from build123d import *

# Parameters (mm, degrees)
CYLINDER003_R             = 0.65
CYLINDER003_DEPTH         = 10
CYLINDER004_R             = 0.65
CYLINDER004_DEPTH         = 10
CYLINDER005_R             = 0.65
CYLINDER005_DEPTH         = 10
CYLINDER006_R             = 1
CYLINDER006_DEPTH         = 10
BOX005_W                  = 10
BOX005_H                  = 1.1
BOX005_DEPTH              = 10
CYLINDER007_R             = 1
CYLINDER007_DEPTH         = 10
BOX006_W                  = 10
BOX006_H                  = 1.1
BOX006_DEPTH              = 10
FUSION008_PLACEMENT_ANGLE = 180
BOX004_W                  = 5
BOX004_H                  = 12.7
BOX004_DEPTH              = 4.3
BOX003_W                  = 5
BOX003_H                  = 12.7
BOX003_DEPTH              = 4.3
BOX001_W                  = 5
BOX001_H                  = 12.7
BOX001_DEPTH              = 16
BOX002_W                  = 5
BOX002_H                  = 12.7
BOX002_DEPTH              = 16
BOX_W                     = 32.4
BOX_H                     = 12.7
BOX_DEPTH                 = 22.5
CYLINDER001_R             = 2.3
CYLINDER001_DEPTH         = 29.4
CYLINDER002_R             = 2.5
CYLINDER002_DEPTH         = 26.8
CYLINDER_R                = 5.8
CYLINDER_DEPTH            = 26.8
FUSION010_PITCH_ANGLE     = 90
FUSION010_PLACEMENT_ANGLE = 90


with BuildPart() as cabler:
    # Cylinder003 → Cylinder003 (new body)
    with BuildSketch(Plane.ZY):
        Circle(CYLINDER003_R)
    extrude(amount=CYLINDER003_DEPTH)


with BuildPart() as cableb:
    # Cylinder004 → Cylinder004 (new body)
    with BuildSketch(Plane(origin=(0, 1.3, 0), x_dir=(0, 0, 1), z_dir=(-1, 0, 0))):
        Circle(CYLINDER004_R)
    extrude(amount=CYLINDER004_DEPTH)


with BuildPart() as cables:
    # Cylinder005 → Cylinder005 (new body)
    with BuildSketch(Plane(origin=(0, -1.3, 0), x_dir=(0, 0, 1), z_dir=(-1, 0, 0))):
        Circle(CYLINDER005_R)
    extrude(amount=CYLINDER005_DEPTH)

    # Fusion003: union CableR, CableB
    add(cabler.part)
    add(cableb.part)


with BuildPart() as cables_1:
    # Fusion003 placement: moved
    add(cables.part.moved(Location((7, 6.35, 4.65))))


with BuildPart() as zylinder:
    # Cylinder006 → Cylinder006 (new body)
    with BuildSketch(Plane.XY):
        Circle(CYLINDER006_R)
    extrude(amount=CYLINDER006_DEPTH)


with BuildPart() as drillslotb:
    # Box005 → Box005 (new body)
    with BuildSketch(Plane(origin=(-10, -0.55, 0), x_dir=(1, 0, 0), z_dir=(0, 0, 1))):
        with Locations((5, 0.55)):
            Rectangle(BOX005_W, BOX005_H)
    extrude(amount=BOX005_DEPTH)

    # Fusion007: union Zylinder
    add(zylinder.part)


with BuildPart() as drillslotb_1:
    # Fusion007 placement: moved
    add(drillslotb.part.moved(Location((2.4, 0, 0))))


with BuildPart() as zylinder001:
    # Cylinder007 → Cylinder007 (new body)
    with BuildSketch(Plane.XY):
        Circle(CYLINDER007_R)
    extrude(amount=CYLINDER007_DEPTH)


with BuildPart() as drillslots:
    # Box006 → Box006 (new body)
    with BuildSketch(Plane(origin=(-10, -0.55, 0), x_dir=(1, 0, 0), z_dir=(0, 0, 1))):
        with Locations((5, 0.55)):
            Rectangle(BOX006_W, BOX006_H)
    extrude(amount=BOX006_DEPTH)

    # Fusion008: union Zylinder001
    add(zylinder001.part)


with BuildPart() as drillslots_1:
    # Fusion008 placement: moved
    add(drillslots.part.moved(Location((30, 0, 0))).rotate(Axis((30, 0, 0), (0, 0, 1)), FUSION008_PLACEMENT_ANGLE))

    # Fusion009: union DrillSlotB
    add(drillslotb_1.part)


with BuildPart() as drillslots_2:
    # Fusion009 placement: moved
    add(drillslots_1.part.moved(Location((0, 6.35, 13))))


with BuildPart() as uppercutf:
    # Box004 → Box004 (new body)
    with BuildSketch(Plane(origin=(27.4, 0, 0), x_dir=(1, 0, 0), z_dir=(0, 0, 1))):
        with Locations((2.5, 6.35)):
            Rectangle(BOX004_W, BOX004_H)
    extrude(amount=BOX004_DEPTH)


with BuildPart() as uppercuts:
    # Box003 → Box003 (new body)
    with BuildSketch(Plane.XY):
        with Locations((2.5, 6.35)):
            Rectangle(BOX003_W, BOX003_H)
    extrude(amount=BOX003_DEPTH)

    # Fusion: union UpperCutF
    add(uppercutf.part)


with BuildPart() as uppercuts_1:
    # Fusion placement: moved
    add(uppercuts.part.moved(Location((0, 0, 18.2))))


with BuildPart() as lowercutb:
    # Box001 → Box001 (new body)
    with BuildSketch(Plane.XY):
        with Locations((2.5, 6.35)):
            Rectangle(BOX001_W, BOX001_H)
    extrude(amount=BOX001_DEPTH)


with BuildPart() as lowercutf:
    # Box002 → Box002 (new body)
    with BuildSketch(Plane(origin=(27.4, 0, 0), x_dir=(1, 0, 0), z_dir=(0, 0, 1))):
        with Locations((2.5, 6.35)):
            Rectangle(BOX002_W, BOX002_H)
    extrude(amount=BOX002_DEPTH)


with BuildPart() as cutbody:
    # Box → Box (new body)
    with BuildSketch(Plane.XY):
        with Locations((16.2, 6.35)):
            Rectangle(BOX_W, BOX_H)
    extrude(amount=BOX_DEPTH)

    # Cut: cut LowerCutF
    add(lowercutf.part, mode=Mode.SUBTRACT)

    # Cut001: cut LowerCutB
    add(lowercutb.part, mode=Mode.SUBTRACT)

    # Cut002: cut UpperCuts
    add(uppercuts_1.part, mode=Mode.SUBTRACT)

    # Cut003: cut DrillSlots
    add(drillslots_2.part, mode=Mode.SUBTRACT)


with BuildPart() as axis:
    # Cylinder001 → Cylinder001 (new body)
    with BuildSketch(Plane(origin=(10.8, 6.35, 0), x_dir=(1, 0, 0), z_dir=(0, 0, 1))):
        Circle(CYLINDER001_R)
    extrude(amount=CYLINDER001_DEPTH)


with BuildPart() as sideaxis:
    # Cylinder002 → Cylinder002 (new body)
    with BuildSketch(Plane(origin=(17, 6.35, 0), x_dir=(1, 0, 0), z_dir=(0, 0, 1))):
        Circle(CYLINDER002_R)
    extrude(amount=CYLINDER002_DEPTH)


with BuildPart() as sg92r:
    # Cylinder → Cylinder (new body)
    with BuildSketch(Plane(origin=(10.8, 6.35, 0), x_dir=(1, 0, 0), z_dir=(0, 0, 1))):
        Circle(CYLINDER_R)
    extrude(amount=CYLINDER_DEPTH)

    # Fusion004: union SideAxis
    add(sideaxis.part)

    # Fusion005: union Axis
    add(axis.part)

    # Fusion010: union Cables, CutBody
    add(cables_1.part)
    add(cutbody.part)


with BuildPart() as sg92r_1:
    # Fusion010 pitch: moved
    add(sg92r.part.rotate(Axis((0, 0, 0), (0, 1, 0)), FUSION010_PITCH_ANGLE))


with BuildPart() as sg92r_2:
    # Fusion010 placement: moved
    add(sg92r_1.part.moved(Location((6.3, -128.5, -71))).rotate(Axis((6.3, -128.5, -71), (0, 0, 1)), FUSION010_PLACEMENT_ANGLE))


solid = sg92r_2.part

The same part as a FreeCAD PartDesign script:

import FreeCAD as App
import Part
import Sketcher

doc = App.newDocument("Part")
body = doc.addObject("PartDesign::Body", "Body")

sketch1 = doc.addObject("Sketcher::SketchObject", "Sketch")
body.addObject(sketch1)
sketch1.AttachmentSupport = (doc.YZ_Plane, [""])
sketch1.MapMode = "FlatFace"
sketch1.addGeometry(Part.Circle(App.Vector(0, 0, 0), App.Vector(0, 0, 1), 0.65), False)
sketch1.addConstraint([
    Sketcher.Constraint("Coincident", 0, 3, -1, 1),
    Sketcher.Constraint("Diameter", 0, 1.3),
])
pad1 = doc.addObject("PartDesign::Pad", "Pad")
body.addObject(pad1)
pad1.Profile = sketch1
pad1.Length = 10
pad1.Reversed = True
body2 = doc.addObject("PartDesign::Body", "Body001")

sketch2 = doc.addObject("Sketcher::SketchObject", "Sketch001")
body2.addObject(sketch2)
sketch2.AttachmentSupport = (doc.getObject("YZ_Plane001"), [""])
sketch2.MapMode = "FlatFace"
sketch2.addGeometry(Part.Circle(App.Vector(1.3, 0, 0), App.Vector(0, 0, 1), 0.65), False)
sketch2.addConstraint([
    Sketcher.Constraint("PointOnObject", 0, 3, -1),
    Sketcher.Constraint("Diameter", 0, 1.3),
    Sketcher.Constraint("DistanceX", -1, 1, 0, 3, 1.3),
])
pad2 = doc.addObject("PartDesign::Pad", "Pad001")
body2.addObject(pad2)
pad2.Profile = sketch2
pad2.Length = 10
pad2.Reversed = True
body3 = doc.addObject("PartDesign::Body", "Body002")
body3.AllowCompound = True

sketch3 = doc.addObject("Sketcher::SketchObject", "Sketch002")
body3.addObject(sketch3)
sketch3.AttachmentSupport = (doc.getObject("YZ_Plane002"), [""])
sketch3.MapMode = "FlatFace"
sketch3.addGeometry(Part.Circle(App.Vector(-1.3, 0, 0), App.Vector(0, 0, 1), 0.65), False)
sketch3.addConstraint([
    Sketcher.Constraint("PointOnObject", 0, 3, -1),
    Sketcher.Constraint("Diameter", 0, 1.3),
    Sketcher.Constraint("DistanceX", 0, 3, -1, 1, 1.3),
])
pad3 = doc.addObject("PartDesign::Pad", "Pad002")
body3.addObject(pad3)
pad3.Profile = sketch3
pad3.Length = 10
pad3.Reversed = True
doc.recompute()

boolean = doc.addObject("PartDesign::Boolean", "Boolean")
body3.addObject(boolean)
boolean.Type = "Fuse"
boolean.addObjects([body])
doc.recompute()

boolean2 = doc.addObject("PartDesign::Boolean", "Boolean001")
body3.addObject(boolean2)
boolean2.Type = "Fuse"
boolean2.addObjects([body2])
body4 = doc.addObject("PartDesign::Body", "Body003")
body4.AllowCompound = True
doc.recompute()

body3.Placement = App.Placement(App.Vector(7, 6.35, 4.65), App.Rotation(App.Vector(0, 0, 1), 0))
boolean3 = doc.addObject("PartDesign::Boolean", "Boolean002")
body4.addObject(boolean3)
boolean3.Type = "Fuse"
boolean3.addObjects([body3])
body5 = doc.addObject("PartDesign::Body", "Body004")

sketch4 = doc.addObject("Sketcher::SketchObject", "Sketch003")
body5.addObject(sketch4)
sketch4.AttachmentSupport = (doc.getObject("XY_Plane004"), [""])
sketch4.MapMode = "FlatFace"
sketch4.addGeometry(Part.Circle(App.Vector(0, 0, 0), App.Vector(0, 0, 1), 1), False)
sketch4.addConstraint([
    Sketcher.Constraint("Coincident", 0, 3, -1, 1),
    Sketcher.Constraint("Diameter", 0, 2.0),
])
pad4 = doc.addObject("PartDesign::Pad", "Pad003")
body5.addObject(pad4)
pad4.Profile = sketch4
pad4.Length = 10
body6 = doc.addObject("PartDesign::Body", "Body005")

sketch5 = doc.addObject("Sketcher::SketchObject", "Sketch004")
body6.addObject(sketch5)
sketch5.AttachmentSupport = (doc.getObject("XY_Plane005"), [""])
sketch5.MapMode = "FlatFace"
sketch5.addGeometry([
    Part.LineSegment(App.Vector(-10, 0.55, 0), App.Vector(-10, -0.55, 0)),
    Part.LineSegment(App.Vector(-10, -0.55, 0), App.Vector(0, -0.55, 0)),
    Part.LineSegment(App.Vector(0, -0.55, 0), App.Vector(0, 0.55, 0)),
    Part.LineSegment(App.Vector(0, 0.55, 0), App.Vector(-10, 0.55, 0)),
], False)
sketch5.addConstraint([
    Sketcher.Constraint("Coincident", 0, 2, 1, 1),
    Sketcher.Constraint("Coincident", 1, 2, 2, 1),
    Sketcher.Constraint("Coincident", 2, 2, 3, 1),
    Sketcher.Constraint("Coincident", 3, 2, 0, 1),
    Sketcher.Constraint("Vertical", 0),
    Sketcher.Constraint("Horizontal", 1),
    Sketcher.Constraint("Vertical", 2),
    Sketcher.Constraint("Horizontal", 3),
    Sketcher.Constraint("Symmetric", 1, 2, 2, 2, -1, 1),
    Sketcher.Constraint("DistanceX", 1, 1, 1, 2, 10.0),
    Sketcher.Constraint("DistanceY", 0, 2, 0, 1, 1.1),
])
pad5 = doc.addObject("PartDesign::Pad", "Pad004")
body6.addObject(pad5)
pad5.Profile = sketch5
pad5.Length = 10
doc.recompute()

boolean4 = doc.addObject("PartDesign::Boolean", "Boolean003")
body6.addObject(boolean4)
boolean4.Type = "Fuse"
boolean4.addObjects([body5])
body7 = doc.addObject("PartDesign::Body", "Body006")
doc.recompute()

body6.Placement = App.Placement(App.Vector(2.4, 0, 0), App.Rotation(App.Vector(0, 0, 1), 0))
boolean5 = doc.addObject("PartDesign::Boolean", "Boolean004")
body7.addObject(boolean5)
boolean5.Type = "Fuse"
boolean5.addObjects([body6])
body8 = doc.addObject("PartDesign::Body", "Body007")

sketch6 = doc.addObject("Sketcher::SketchObject", "Sketch005")
body8.addObject(sketch6)
sketch6.AttachmentSupport = (doc.getObject("XY_Plane007"), [""])
sketch6.MapMode = "FlatFace"
sketch6.addGeometry(Part.Circle(App.Vector(0, 0, 0), App.Vector(0, 0, 1), 1), False)
sketch6.addConstraint([
    Sketcher.Constraint("Coincident", 0, 3, -1, 1),
    Sketcher.Constraint("Diameter", 0, 2.0),
])
pad6 = doc.addObject("PartDesign::Pad", "Pad005")
body8.addObject(pad6)
pad6.Profile = sketch6
pad6.Length = 10
body9 = doc.addObject("PartDesign::Body", "Body008")

sketch7 = doc.addObject("Sketcher::SketchObject", "Sketch006")
body9.addObject(sketch7)
sketch7.AttachmentSupport = (doc.getObject("XY_Plane008"), [""])
sketch7.MapMode = "FlatFace"
sketch7.addGeometry([
    Part.LineSegment(App.Vector(-10, 0.55, 0), App.Vector(-10, -0.55, 0)),
    Part.LineSegment(App.Vector(-10, -0.55, 0), App.Vector(0, -0.55, 0)),
    Part.LineSegment(App.Vector(0, -0.55, 0), App.Vector(0, 0.55, 0)),
    Part.LineSegment(App.Vector(0, 0.55, 0), App.Vector(-10, 0.55, 0)),
], False)
sketch7.addConstraint([
    Sketcher.Constraint("Coincident", 0, 2, 1, 1),
    Sketcher.Constraint("Coincident", 1, 2, 2, 1),
    Sketcher.Constraint("Coincident", 2, 2, 3, 1),
    Sketcher.Constraint("Coincident", 3, 2, 0, 1),
    Sketcher.Constraint("Vertical", 0),
    Sketcher.Constraint("Horizontal", 1),
    Sketcher.Constraint("Vertical", 2),
    Sketcher.Constraint("Horizontal", 3),
    Sketcher.Constraint("Symmetric", 1, 2, 2, 2, -1, 1),
    Sketcher.Constraint("DistanceX", 1, 1, 1, 2, 10.0),
    Sketcher.Constraint("DistanceY", 0, 2, 0, 1, 1.1),
])
pad7 = doc.addObject("PartDesign::Pad", "Pad006")
body9.addObject(pad7)
pad7.Profile = sketch7
pad7.Length = 10
doc.recompute()

boolean6 = doc.addObject("PartDesign::Boolean", "Boolean005")
body9.addObject(boolean6)
boolean6.Type = "Fuse"
boolean6.addObjects([body8])
body10 = doc.addObject("PartDesign::Body", "Body009")
body10.AllowCompound = True
doc.recompute()

body9.Placement = App.Placement(App.Vector(30, 0, 0), App.Rotation(App.Vector(0, 0, 1), 180))
boolean7 = doc.addObject("PartDesign::Boolean", "Boolean006")
body10.addObject(boolean7)
boolean7.Type = "Fuse"
boolean7.addObjects([body9])
doc.recompute()

boolean8 = doc.addObject("PartDesign::Boolean", "Boolean007")
body10.addObject(boolean8)
boolean8.Type = "Fuse"
boolean8.addObjects([body7])
body11 = doc.addObject("PartDesign::Body", "Body010")
body11.AllowCompound = True
doc.recompute()

body10.Placement = App.Placement(App.Vector(0, 6.35, 13), App.Rotation(App.Vector(0, 0, 1), 0))
boolean9 = doc.addObject("PartDesign::Boolean", "Boolean008")
body11.addObject(boolean9)
boolean9.Type = "Fuse"
boolean9.addObjects([body10])
body12 = doc.addObject("PartDesign::Body", "Body011")

sketch8 = doc.addObject("Sketcher::SketchObject", "Sketch007")
body12.addObject(sketch8)
sketch8.AttachmentSupport = (doc.getObject("XY_Plane011"), [""])
sketch8.MapMode = "FlatFace"
sketch8.addGeometry([
    Part.LineSegment(App.Vector(27.4, 12.7, 0), App.Vector(27.4, 0, 0)),
    Part.LineSegment(App.Vector(27.4, 0, 0), App.Vector(32.4, 0, 0)),
    Part.LineSegment(App.Vector(32.4, 0, 0), App.Vector(32.4, 12.7, 0)),
    Part.LineSegment(App.Vector(32.4, 12.7, 0), App.Vector(27.4, 12.7, 0)),
], False)
sketch8.addConstraint([
    Sketcher.Constraint("Coincident", 0, 2, 1, 1),
    Sketcher.Constraint("Coincident", 1, 2, 2, 1),
    Sketcher.Constraint("Coincident", 2, 2, 3, 1),
    Sketcher.Constraint("Coincident", 3, 2, 0, 1),
    Sketcher.Constraint("Vertical", 0),
    Sketcher.Constraint("Horizontal", 1),
    Sketcher.Constraint("Vertical", 2),
    Sketcher.Constraint("Horizontal", 3),
    Sketcher.Constraint("PointOnObject", 0, 2, -1),
    Sketcher.Constraint("DistanceX", 1, 1, 1, 2, 5.0),
    Sketcher.Constraint("DistanceY", 0, 2, 0, 1, 12.7),
    Sketcher.Constraint("DistanceX", -1, 1, 0, 2, 27.4),
])
pad8 = doc.addObject("PartDesign::Pad", "Pad007")
body12.addObject(pad8)
pad8.Profile = sketch8
pad8.Length = 4.3
body13 = doc.addObject("PartDesign::Body", "Body012")
body13.AllowCompound = True

sketch9 = doc.addObject("Sketcher::SketchObject", "Sketch008")
body13.addObject(sketch9)
sketch9.AttachmentSupport = (doc.getObject("XY_Plane012"), [""])
sketch9.MapMode = "FlatFace"
sketch9.addGeometry([
    Part.LineSegment(App.Vector(0, 12.7, 0), App.Vector(0, 0, 0)),
    Part.LineSegment(App.Vector(0, 0, 0), App.Vector(5, 0, 0)),
    Part.LineSegment(App.Vector(5, 0, 0), App.Vector(5, 12.7, 0)),
    Part.LineSegment(App.Vector(5, 12.7, 0), App.Vector(0, 12.7, 0)),
], False)
sketch9.addConstraint([
    Sketcher.Constraint("Coincident", 0, 2, 1, 1),
    Sketcher.Constraint("Coincident", 1, 2, 2, 1),
    Sketcher.Constraint("Coincident", 2, 2, 3, 1),
    Sketcher.Constraint("Coincident", 3, 2, 0, 1),
    Sketcher.Constraint("Vertical", 0),
    Sketcher.Constraint("Horizontal", 1),
    Sketcher.Constraint("Vertical", 2),
    Sketcher.Constraint("Horizontal", 3),
    Sketcher.Constraint("Coincident", 0, 2, -1, 1),
    Sketcher.Constraint("DistanceX", 1, 1, 1, 2, 5.0),
    Sketcher.Constraint("DistanceY", 0, 2, 0, 1, 12.7),
])
pad9 = doc.addObject("PartDesign::Pad", "Pad008")
body13.addObject(pad9)
pad9.Profile = sketch9
pad9.Length = 4.3
doc.recompute()

boolean10 = doc.addObject("PartDesign::Boolean", "Boolean009")
body13.addObject(boolean10)
boolean10.Type = "Fuse"
boolean10.addObjects([body12])
body14 = doc.addObject("PartDesign::Body", "Body013")
body14.AllowCompound = True
doc.recompute()

body13.Placement = App.Placement(App.Vector(0, 0, 18.2), App.Rotation(App.Vector(0, 0, 1), 0))
boolean11 = doc.addObject("PartDesign::Boolean", "Boolean010")
body14.addObject(boolean11)
boolean11.Type = "Fuse"
boolean11.addObjects([body13])
body15 = doc.addObject("PartDesign::Body", "Body014")

sketch10 = doc.addObject("Sketcher::SketchObject", "Sketch009")
body15.addObject(sketch10)
sketch10.AttachmentSupport = (doc.getObject("XY_Plane014"), [""])
sketch10.MapMode = "FlatFace"
sketch10.addGeometry([
    Part.LineSegment(App.Vector(0, 12.7, 0), App.Vector(0, 0, 0)),
    Part.LineSegment(App.Vector(0, 0, 0), App.Vector(5, 0, 0)),
    Part.LineSegment(App.Vector(5, 0, 0), App.Vector(5, 12.7, 0)),
    Part.LineSegment(App.Vector(5, 12.7, 0), App.Vector(0, 12.7, 0)),
], False)
sketch10.addConstraint([
    Sketcher.Constraint("Coincident", 0, 2, 1, 1),
    Sketcher.Constraint("Coincident", 1, 2, 2, 1),
    Sketcher.Constraint("Coincident", 2, 2, 3, 1),
    Sketcher.Constraint("Coincident", 3, 2, 0, 1),
    Sketcher.Constraint("Vertical", 0),
    Sketcher.Constraint("Horizontal", 1),
    Sketcher.Constraint("Vertical", 2),
    Sketcher.Constraint("Horizontal", 3),
    Sketcher.Constraint("Coincident", 0, 2, -1, 1),
    Sketcher.Constraint("DistanceX", 1, 1, 1, 2, 5.0),
    Sketcher.Constraint("DistanceY", 0, 2, 0, 1, 12.7),
])
pad10 = doc.addObject("PartDesign::Pad", "Pad009")
body15.addObject(pad10)
pad10.Profile = sketch10
pad10.Length = 16
body16 = doc.addObject("PartDesign::Body", "Body015")

sketch11 = doc.addObject("Sketcher::SketchObject", "Sketch010")
body16.addObject(sketch11)
sketch11.AttachmentSupport = (doc.getObject("XY_Plane015"), [""])
sketch11.MapMode = "FlatFace"
sketch11.addGeometry([
    Part.LineSegment(App.Vector(27.4, 12.7, 0), App.Vector(27.4, 0, 0)),
    Part.LineSegment(App.Vector(27.4, 0, 0), App.Vector(32.4, 0, 0)),
    Part.LineSegment(App.Vector(32.4, 0, 0), App.Vector(32.4, 12.7, 0)),
    Part.LineSegment(App.Vector(32.4, 12.7, 0), App.Vector(27.4, 12.7, 0)),
], False)
sketch11.addConstraint([
    Sketcher.Constraint("Coincident", 0, 2, 1, 1),
    Sketcher.Constraint("Coincident", 1, 2, 2, 1),
    Sketcher.Constraint("Coincident", 2, 2, 3, 1),
    Sketcher.Constraint("Coincident", 3, 2, 0, 1),
    Sketcher.Constraint("Vertical", 0),
    Sketcher.Constraint("Horizontal", 1),
    Sketcher.Constraint("Vertical", 2),
    Sketcher.Constraint("Horizontal", 3),
    Sketcher.Constraint("PointOnObject", 0, 2, -1),
    Sketcher.Constraint("DistanceX", 1, 1, 1, 2, 5.0),
    Sketcher.Constraint("DistanceY", 0, 2, 0, 1, 12.7),
    Sketcher.Constraint("DistanceX", -1, 1, 0, 2, 27.4),
])
pad11 = doc.addObject("PartDesign::Pad", "Pad010")
body16.addObject(pad11)
pad11.Profile = sketch11
pad11.Length = 16
body17 = doc.addObject("PartDesign::Body", "Body016")

sketch12 = doc.addObject("Sketcher::SketchObject", "Sketch011")
body17.addObject(sketch12)
sketch12.AttachmentSupport = (doc.getObject("XY_Plane016"), [""])
sketch12.MapMode = "FlatFace"
sketch12.addGeometry([
    Part.LineSegment(App.Vector(0, 12.7, 0), App.Vector(0, 0, 0)),
    Part.LineSegment(App.Vector(0, 0, 0), App.Vector(32.4, 0, 0)),
    Part.LineSegment(App.Vector(32.4, 0, 0), App.Vector(32.4, 12.7, 0)),
    Part.LineSegment(App.Vector(32.4, 12.7, 0), App.Vector(0, 12.7, 0)),
], False)
sketch12.addConstraint([
    Sketcher.Constraint("Coincident", 0, 2, 1, 1),
    Sketcher.Constraint("Coincident", 1, 2, 2, 1),
    Sketcher.Constraint("Coincident", 2, 2, 3, 1),
    Sketcher.Constraint("Coincident", 3, 2, 0, 1),
    Sketcher.Constraint("Vertical", 0),
    Sketcher.Constraint("Horizontal", 1),
    Sketcher.Constraint("Vertical", 2),
    Sketcher.Constraint("Horizontal", 3),
    Sketcher.Constraint("Coincident", 0, 2, -1, 1),
    Sketcher.Constraint("DistanceX", 1, 1, 1, 2, 32.4),
    Sketcher.Constraint("DistanceY", 0, 2, 0, 1, 12.7),
])
pad12 = doc.addObject("PartDesign::Pad", "Pad011")
body17.addObject(pad12)
pad12.Profile = sketch12
pad12.Length = 22.5
doc.recompute()

boolean12 = doc.addObject("PartDesign::Boolean", "Boolean011")
body17.addObject(boolean12)
boolean12.Type = "Cut"
boolean12.addObjects([body16])
doc.recompute()

boolean13 = doc.addObject("PartDesign::Boolean", "Boolean012")
body17.addObject(boolean13)
boolean13.Type = "Cut"
boolean13.addObjects([body15])
doc.recompute()

boolean14 = doc.addObject("PartDesign::Boolean", "Boolean013")
body17.addObject(boolean14)
boolean14.Type = "Cut"
boolean14.addObjects([body14])
doc.recompute()

boolean15 = doc.addObject("PartDesign::Boolean", "Boolean014")
body17.addObject(boolean15)
boolean15.Type = "Cut"
boolean15.addObjects([body11])
body18 = doc.addObject("PartDesign::Body", "Body017")

sketch13 = doc.addObject("Sketcher::SketchObject", "Sketch012")
body18.addObject(sketch13)
sketch13.AttachmentSupport = (doc.getObject("XY_Plane017"), [""])
sketch13.MapMode = "FlatFace"
sketch13.addGeometry(Part.Circle(App.Vector(10.8, 6.35, 0), App.Vector(0, 0, 1), 2.3), False)
sketch13.addConstraint([
    Sketcher.Constraint("Diameter", 0, 4.6),
    Sketcher.Constraint("DistanceX", -1, 1, 0, 3, 10.8),
    Sketcher.Constraint("DistanceY", -1, 1, 0, 3, 6.35),
])
pad13 = doc.addObject("PartDesign::Pad", "Pad012")
body18.addObject(pad13)
pad13.Profile = sketch13
pad13.Length = 29.4
body19 = doc.addObject("PartDesign::Body", "Body018")

sketch14 = doc.addObject("Sketcher::SketchObject", "Sketch013")
body19.addObject(sketch14)
sketch14.AttachmentSupport = (doc.getObject("XY_Plane018"), [""])
sketch14.MapMode = "FlatFace"
sketch14.addGeometry(Part.Circle(App.Vector(17, 6.35, 0), App.Vector(0, 0, 1), 2.5), False)
sketch14.addConstraint([
    Sketcher.Constraint("Diameter", 0, 5.0),
    Sketcher.Constraint("DistanceX", -1, 1, 0, 3, 17.0),
    Sketcher.Constraint("DistanceY", -1, 1, 0, 3, 6.35),
])
pad14 = doc.addObject("PartDesign::Pad", "Pad013")
body19.addObject(pad14)
pad14.Profile = sketch14
pad14.Length = 26.8
body20 = doc.addObject("PartDesign::Body", "Body019")

sketch15 = doc.addObject("Sketcher::SketchObject", "Sketch014")
body20.addObject(sketch15)
sketch15.AttachmentSupport = (doc.getObject("XY_Plane019"), [""])
sketch15.MapMode = "FlatFace"
sketch15.addGeometry(Part.Circle(App.Vector(10.8, 6.35, 0), App.Vector(0, 0, 1), 5.8), False)
sketch15.addConstraint([
    Sketcher.Constraint("Diameter", 0, 11.6),
    Sketcher.Constraint("DistanceX", -1, 1, 0, 3, 10.8),
    Sketcher.Constraint("DistanceY", -1, 1, 0, 3, 6.35),
])
pad15 = doc.addObject("PartDesign::Pad", "Pad014")
body20.addObject(pad15)
pad15.Profile = sketch15
pad15.Length = 26.8
doc.recompute()

boolean16 = doc.addObject("PartDesign::Boolean", "Boolean015")
body20.addObject(boolean16)
boolean16.Type = "Fuse"
boolean16.addObjects([body19])
doc.recompute()

boolean17 = doc.addObject("PartDesign::Boolean", "Boolean016")
body20.addObject(boolean17)
boolean17.Type = "Fuse"
boolean17.addObjects([body18])
doc.recompute()

boolean18 = doc.addObject("PartDesign::Boolean", "Boolean017")
body20.addObject(boolean18)
boolean18.Type = "Fuse"
boolean18.addObjects([body4])
doc.recompute()

boolean19 = doc.addObject("PartDesign::Boolean", "Boolean018")
body20.addObject(boolean19)
boolean19.Type = "Fuse"
boolean19.addObjects([body17])
body21 = doc.addObject("PartDesign::Body", "Body020")
doc.recompute()

body20.Placement = App.Placement(App.Vector(0, 0, 0), App.Rotation(App.Vector(0, 1, 0), 90))
boolean20 = doc.addObject("PartDesign::Boolean", "Boolean019")
body21.addObject(boolean20)
boolean20.Type = "Fuse"
boolean20.addObjects([body20])
body22 = doc.addObject("PartDesign::Body", "Body021")
doc.recompute()

body21.Placement = App.Placement(App.Vector(6.3, -128.5, -71), App.Rotation(App.Vector(0, 0, 1), 90))
boolean21 = doc.addObject("PartDesign::Boolean", "Boolean020")
body22.addObject(boolean21)
boolean21.Type = "Fuse"
boolean21.addObjects([body21])

doc.recompute()
